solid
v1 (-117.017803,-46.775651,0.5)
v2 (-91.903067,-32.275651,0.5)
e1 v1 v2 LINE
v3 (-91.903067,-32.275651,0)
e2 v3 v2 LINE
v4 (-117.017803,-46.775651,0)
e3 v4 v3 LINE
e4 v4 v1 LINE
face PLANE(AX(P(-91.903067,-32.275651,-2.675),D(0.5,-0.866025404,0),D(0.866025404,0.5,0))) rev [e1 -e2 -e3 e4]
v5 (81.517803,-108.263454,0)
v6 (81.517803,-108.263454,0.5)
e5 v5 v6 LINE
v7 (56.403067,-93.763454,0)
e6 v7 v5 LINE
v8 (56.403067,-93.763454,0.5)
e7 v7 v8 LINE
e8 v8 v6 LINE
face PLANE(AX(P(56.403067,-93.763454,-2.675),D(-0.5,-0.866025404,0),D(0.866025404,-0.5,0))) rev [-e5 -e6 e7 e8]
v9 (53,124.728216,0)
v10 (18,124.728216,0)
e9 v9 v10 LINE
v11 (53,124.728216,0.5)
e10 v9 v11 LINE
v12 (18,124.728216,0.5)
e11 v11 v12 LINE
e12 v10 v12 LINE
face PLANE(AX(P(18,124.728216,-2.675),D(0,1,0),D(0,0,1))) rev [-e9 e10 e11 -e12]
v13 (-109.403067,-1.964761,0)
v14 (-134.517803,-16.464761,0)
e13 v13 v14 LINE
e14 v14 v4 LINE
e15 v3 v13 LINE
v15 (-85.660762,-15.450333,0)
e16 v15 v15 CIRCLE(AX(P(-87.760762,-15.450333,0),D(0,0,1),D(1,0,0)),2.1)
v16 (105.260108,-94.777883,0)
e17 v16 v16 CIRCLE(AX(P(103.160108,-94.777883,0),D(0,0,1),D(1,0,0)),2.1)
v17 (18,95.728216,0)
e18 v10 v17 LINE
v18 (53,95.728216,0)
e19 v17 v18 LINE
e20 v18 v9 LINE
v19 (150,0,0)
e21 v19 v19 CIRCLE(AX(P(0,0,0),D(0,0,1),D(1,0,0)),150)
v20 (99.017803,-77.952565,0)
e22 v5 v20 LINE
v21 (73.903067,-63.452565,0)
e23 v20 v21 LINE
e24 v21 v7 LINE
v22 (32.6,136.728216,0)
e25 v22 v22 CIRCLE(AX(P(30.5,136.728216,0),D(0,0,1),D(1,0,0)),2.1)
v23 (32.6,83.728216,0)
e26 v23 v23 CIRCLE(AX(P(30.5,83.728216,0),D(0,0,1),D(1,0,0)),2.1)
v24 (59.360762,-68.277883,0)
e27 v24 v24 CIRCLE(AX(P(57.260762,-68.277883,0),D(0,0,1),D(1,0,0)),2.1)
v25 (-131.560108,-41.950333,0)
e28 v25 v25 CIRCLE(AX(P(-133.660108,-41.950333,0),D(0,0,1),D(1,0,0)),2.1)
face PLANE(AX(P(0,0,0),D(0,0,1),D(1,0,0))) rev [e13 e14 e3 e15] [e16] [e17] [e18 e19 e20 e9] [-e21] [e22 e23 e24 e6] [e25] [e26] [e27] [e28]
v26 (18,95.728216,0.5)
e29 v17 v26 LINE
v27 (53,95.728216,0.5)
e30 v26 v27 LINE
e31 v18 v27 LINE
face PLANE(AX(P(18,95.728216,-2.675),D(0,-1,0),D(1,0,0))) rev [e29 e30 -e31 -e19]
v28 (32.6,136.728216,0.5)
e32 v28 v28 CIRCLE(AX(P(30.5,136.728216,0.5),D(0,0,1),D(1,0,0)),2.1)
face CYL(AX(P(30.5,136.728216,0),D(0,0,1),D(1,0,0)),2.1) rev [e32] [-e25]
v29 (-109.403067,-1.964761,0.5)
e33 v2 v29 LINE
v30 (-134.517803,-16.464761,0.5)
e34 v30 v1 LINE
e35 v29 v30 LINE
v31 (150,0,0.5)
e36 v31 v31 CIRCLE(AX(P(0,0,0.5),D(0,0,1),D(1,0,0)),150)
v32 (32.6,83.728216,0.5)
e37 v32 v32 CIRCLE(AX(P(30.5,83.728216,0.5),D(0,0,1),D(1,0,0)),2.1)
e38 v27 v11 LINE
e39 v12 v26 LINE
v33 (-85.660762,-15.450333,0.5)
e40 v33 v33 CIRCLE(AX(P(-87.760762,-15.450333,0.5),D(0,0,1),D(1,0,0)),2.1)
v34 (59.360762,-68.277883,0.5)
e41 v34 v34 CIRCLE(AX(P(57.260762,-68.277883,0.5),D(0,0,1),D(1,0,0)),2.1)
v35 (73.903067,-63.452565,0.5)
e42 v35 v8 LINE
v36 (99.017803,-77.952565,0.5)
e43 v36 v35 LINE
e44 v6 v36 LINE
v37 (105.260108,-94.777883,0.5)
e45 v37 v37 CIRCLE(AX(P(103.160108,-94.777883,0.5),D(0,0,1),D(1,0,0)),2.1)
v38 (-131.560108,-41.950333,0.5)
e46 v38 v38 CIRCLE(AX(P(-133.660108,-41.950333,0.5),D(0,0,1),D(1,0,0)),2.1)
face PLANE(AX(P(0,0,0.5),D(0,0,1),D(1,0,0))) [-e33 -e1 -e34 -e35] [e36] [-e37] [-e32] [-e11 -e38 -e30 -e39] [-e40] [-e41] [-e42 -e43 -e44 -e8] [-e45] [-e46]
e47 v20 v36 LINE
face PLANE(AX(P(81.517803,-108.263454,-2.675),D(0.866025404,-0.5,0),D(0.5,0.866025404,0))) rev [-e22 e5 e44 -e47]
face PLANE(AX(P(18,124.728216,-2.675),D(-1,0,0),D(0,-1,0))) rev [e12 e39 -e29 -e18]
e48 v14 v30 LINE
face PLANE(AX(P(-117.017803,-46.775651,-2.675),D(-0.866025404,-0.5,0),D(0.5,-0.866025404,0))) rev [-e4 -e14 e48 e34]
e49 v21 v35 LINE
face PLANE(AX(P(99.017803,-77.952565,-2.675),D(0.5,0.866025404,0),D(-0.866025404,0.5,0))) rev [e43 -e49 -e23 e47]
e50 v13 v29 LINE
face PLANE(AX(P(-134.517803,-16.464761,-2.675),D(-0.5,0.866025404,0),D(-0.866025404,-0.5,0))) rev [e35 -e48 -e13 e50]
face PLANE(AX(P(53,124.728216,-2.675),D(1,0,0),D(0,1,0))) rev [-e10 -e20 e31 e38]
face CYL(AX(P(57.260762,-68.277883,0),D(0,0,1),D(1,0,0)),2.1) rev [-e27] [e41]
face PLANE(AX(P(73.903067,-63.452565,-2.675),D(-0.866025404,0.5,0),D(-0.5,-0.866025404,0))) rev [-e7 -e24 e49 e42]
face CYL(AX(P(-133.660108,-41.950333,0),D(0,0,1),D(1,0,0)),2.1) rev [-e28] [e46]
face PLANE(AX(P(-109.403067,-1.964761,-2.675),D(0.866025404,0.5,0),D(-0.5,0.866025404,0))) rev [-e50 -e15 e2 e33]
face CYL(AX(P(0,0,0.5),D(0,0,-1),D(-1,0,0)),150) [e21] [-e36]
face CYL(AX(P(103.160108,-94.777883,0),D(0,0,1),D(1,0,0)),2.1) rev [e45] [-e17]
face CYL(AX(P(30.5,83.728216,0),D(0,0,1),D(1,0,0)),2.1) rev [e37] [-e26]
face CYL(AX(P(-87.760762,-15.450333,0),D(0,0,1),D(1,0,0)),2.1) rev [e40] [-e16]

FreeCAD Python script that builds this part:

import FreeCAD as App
import Part
import Sketcher

V = App.Vector
Q = App.Units.Quantity

doc = App.newDocument("Part")
params = doc.addObject("Spreadsheet::Sheet", "Params")
for row, (alias, value) in enumerate([
    ("sketch1_diameter", "300 mm"),
    ("pad1_length", "0.5 mm"),
    ("sketch2_width", "35 mm"),
    ("sketch2_height", "29 mm"),
    ("sketch2_length", "35 mm"),
    ("sketch2_length2", "29 mm"),
    ("pocket1_length", "3.175 mm"),
    ("sketch3_diameter", "4.2 mm"),
], start=1):
    params.set(f"A{row}", alias)
    params.set(f"B{row}", "=" + value)
    params.setAlias(f"B{row}", alias)

body = doc.addObject("PartDesign::Body", "Body")

# Sketch on XY plane
sketch1 = doc.addObject("Sketcher::SketchObject", "Sketch")
body.addObject(sketch1)
sketch1.AttachmentSupport = (doc.XY_Plane, [""])
sketch1.MapMode = "FlatFace"
sketch1.addGeometry(Part.Circle(V(0, 0, 0), V(0, 0, 1), 150), False)
sketch1.addConstraint(Sketcher.Constraint("Coincident", 0, 3, -1, 1))
sketch1.addConstraint(Sketcher.Constraint("Diameter", 0, 300.0))
sketch1.setExpression("Constraints[1]", "Params.sketch1_diameter")
pad1 = doc.addObject("PartDesign::Pad", "Pad")
body.addObject(pad1)
pad1.Profile = sketch1
pad1.setExpression("Length", "Params.pad1_length")

# Sketch on XY plane
sketch2 = doc.addObject("Sketcher::SketchObject", "Sketch001")
body.addObject(sketch2)
sketch2.AttachmentSupport = (doc.XY_Plane, [""])
sketch2.MapMode = "FlatFace"
sketch2.AttachmentOffset = App.Placement(V(0, 0, 0.5), App.Rotation())
sketch2.addGeometry(Part.LineSegment(V(18, 125, 0), V(18, 96, 0)), False)
sketch2.addGeometry(Part.LineSegment(V(18, 96, 0), V(53, 96, 0)), False)
sketch2.addGeometry(Part.LineSegment(V(53, 96, 0), V(53, 125, 0)), False)
sketch2.addGeometry(Part.LineSegment(V(53, 125, 0), V(18, 125, 0)), False)
sketch2.addGeometry(Part.LineSegment(V(74, -63, 0), V(56, -94, 0)), False)
sketch2.addGeometry(Part.LineSegment(V(56, -94, 0), V(82, -108, 0)), False)
sketch2.addGeometry(Part.LineSegment(V(82, -108, 0), V(99, -78, 0)), False)
sketch2.addGeometry(Part.LineSegment(V(99, -78, 0), V(74, -63, 0)), False)
sketch2.addGeometry(Part.LineSegment(V(-92, -32, 0), V(-109, -2, 0)), False)
sketch2.addGeometry(Part.LineSegment(V(-109, -2, 0), V(-135, -16, 0)), False)
sketch2.addGeometry(Part.LineSegment(V(-135, -16, 0), V(-117, -47, 0)), False)
sketch2.addGeometry(Part.LineSegment(V(-117, -47, 0), V(-92, -32, 0)), False)
sketch2.addConstraint(Sketcher.Constraint("Coincident", 0, 2, 1, 1))
sketch2.addConstraint(Sketcher.Constraint("Coincident", 1, 2, 2, 1))
sketch2.addConstraint(Sketcher.Constraint("Coincident", 2, 2, 3, 1))
sketch2.addConstraint(Sketcher.Constraint("Coincident", 3, 2, 0, 1))
sketch2.addConstraint(Sketcher.Constraint("Coincident", 4, 2, 5, 1))
sketch2.addConstraint(Sketcher.Constraint("Coincident", 5, 2, 6, 1))
sketch2.addConstraint(Sketcher.Constraint("Coincident", 6, 2, 7, 1))
sketch2.addConstraint(Sketcher.Constraint("Coincident", 7, 2, 4, 1))
sketch2.addConstraint(Sketcher.Constraint("Coincident", 8, 2, 9, 1))
sketch2.addConstraint(Sketcher.Constraint("Coincident", 9, 2, 10, 1))
sketch2.addConstraint(Sketcher.Constraint("Coincident", 10, 2, 11, 1))
sketch2.addConstraint(Sketcher.Constraint("Coincident", 11, 2, 8, 1))
sketch2.addConstraint(Sketcher.Constraint("Vertical", 0))
sketch2.addConstraint(Sketcher.Constraint("Horizontal", 1))
sketch2.addConstraint(Sketcher.Constraint("Vertical", 2))
sketch2.addConstraint(Sketcher.Constraint("Horizontal", 3))
sketch2.addConstraint(Sketcher.Constraint("Perpendicular", 4, 5))
sketch2.addConstraint(Sketcher.Constraint("Perpendicular", 5, 6))
sketch2.addConstraint(Sketcher.Constraint("Perpendicular", 6, 7))
sketch2.addConstraint(Sketcher.Constraint("Perpendicular", 8, 9))
sketch2.addConstraint(Sketcher.Constraint("Perpendicular", 9, 10))
sketch2.addConstraint(Sketcher.Constraint("Perpendicular", 10, 11))
sketch2.addConstraint(Sketcher.Constraint("Equal", 6, 8))
sketch2.addConstraint(Sketcher.Constraint("Equal", 7, 9))
sketch2.addConstraint(Sketcher.Constraint("DistanceX", 1, 1, 1, 2, 35.0))
sketch2.addConstraint(Sketcher.Constraint("DistanceY", 0, 2, 0, 1, 29.0))
sketch2.addConstraint(Sketcher.Constraint("Angle", 4, Q("-120 deg")))
sketch2.addConstraint(Sketcher.Constraint("Angle", 8, Q("120 deg")))
sketch2.addConstraint(Sketcher.Constraint("Distance", 4, 35.0))
sketch2.addConstraint(Sketcher.Constraint("Distance", 5, 29.0))
sketch2.addConstraint(Sketcher.Constraint("DistanceX", -1, 1, 0, 2, 18.0))
sketch2.addConstraint(Sketcher.Constraint("DistanceY", 8, 2, -1, 1, 1.964761))
sketch2.addConstraint(Sketcher.Constraint("DistanceY", 4, 2, 1, 2, 189.49167))
sketch2.addConstraint(Sketcher.Constraint("DistanceX", 9, 2, 4, 2, 190.92087))
sketch2.addConstraint(Sketcher.Constraint("DistanceY", -1, 1, 0, 2, 95.728216))
sketch2.addConstraint(Sketcher.Constraint("DistanceX", -1, 1, 4, 2, 56.403067))
sketch2.setExpression("Constraints[24]", "Params.sketch2_width")
sketch2.setExpression("Constraints[25]", "Params.sketch2_height")
sketch2.setExpression("Constraints[28]", "Params.sketch2_length")
sketch2.setExpression("Constraints[29]", "Params.sketch2_length2")
pocket1 = doc.addObject("PartDesign::Pocket", "Pocket")
body.addObject(pocket1)
pocket1.Profile = sketch2
pocket1.setExpression("Length", "Params.pocket1_length")

# Sketch on XY plane
sketch3 = doc.addObject("Sketcher::SketchObject", "Sketch002")
body.addObject(sketch3)
sketch3.AttachmentSupport = (doc.XY_Plane, [""])
sketch3.MapMode = "FlatFace"
sketch3.AttachmentOffset = App.Placement(V(0, 0, 0.5), App.Rotation())
sketch3.addGeometry(Part.Circle(V(-133.7, -42, 0), V(0, 0, 1), 2.1), False)
sketch3.addGeometry(Part.Circle(V(-87.8, -15.5, 0), V(0, 0, 1), 2.1), False)
sketch3.addGeometry(Part.Circle(V(30.5, 136.7, 0), V(0, 0, 1), 2.1), False)
sketch3.addGeometry(Part.Circle(V(30.5, 83.7, 0), V(0, 0, 1), 2.1), False)
sketch3.addGeometry(Part.Circle(V(103.2, -94.8, 0), V(0, 0, 1), 2.1), False)
sketch3.addGeometry(Part.Circle(V(57.3, -68.3, 0), V(0, 0, 1), 2.1), False)
sketch3.addConstraint(Sketcher.Constraint("Equal", 0, 1))
sketch3.addConstraint(Sketcher.Constraint("Equal", 1, 2))
sketch3.addConstraint(Sketcher.Constraint("Equal", 2, 3))
sketch3.addConstraint(Sketcher.Constraint("Equal", 3, 4))
sketch3.addConstraint(Sketcher.Constraint("Equal", 4, 5))
sketch3.addConstraint(Sketcher.Constraint("Vertical", 2, 3, 3, 3))
sketch3.addConstraint(Sketcher.Constraint("Diameter", 0, 4.2))
sketch3.addConstraint(Sketcher.Constraint("DistanceY", 3, 3, 2, 3, 53.0))
sketch3.addConstraint(Sketcher.Constraint("DistanceX", -1, 1, 2, 3, 30.5))
sketch3.addConstraint(Sketcher.Constraint("DistanceY", 0, 3, 1, 3, 26.5))
sketch3.addConstraint(Sketcher.Constraint("DistanceY", 4, 3, 5, 3, 26.5))
sketch3.addConstraint(Sketcher.Constraint("DistanceY", 4, 3, 3, 3, 178.506098))
sketch3.addConstraint(Sketcher.Constraint("DistanceX", 0, 3, -1, 1, 133.660108))
sketch3.addConstraint(Sketcher.Constraint("DistanceX", 1, 3, -1, 1, 87.760762))
sketch3.addConstraint(Sketcher.Constraint("DistanceX", -1, 1, 4, 3, 103.160108))
sketch3.addConstraint(Sketcher.Constraint("DistanceX", -1, 1, 5, 3, 57.260762))
sketch3.addConstraint(Sketcher.Constraint("DistanceY", 1, 3, 2, 3, 152.178549))
sketch3.addConstraint(Sketcher.Constraint("DistanceY", 0, 3, -1, 1, 41.950333))
sketch3.setExpression("Constraints[6]", "Params.sketch3_diameter")
pocket2 = doc.addObject("PartDesign::Pocket", "Pocket001")
body.addObject(pocket2)
pocket2.Profile = sketch3
pocket2.Type = "ThroughAll"

doc.recompute()
